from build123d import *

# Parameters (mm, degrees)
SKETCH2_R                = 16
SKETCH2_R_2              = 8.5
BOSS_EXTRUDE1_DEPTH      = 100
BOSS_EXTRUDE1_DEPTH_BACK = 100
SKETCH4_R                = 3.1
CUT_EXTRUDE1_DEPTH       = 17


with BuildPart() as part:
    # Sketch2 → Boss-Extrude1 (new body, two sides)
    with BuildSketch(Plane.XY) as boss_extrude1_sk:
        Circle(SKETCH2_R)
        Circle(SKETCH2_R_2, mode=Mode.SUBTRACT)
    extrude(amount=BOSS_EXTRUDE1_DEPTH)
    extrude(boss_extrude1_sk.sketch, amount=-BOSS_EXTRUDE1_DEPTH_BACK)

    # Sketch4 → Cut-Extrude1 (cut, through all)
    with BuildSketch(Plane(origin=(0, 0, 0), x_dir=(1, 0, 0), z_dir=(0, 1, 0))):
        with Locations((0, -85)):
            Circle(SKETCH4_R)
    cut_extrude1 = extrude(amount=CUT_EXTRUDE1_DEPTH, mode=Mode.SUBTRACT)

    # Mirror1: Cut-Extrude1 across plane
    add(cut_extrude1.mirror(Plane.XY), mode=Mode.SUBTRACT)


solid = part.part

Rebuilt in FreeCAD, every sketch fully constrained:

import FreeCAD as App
import Part
import Sketcher
from FreeCAD import Vector
Q = App.Units.Quantity

doc = App.newDocument("Part")
body = doc.addObject("PartDesign::Body", "Body")

# Sketch on XY plane
sketch1 = body.newObject("Sketcher::SketchObject", "Sketch")
sketch1.AttachmentSupport = (doc.getObject("XY_Plane"), [""])
sketch1.MapMode = "FlatFace"
sketch1.addGeometry([
    Part.Circle(Vector(0, 0, 0), Vector(0, 0, 1), 16),
    Part.Circle(Vector(0, 0, 0), Vector(0, 0, 1), 8),
], False)
sketch1.addConstraint([
    Sketcher.Constraint("Coincident", 0, 3, -1, 1),
    Sketcher.Constraint("Coincident", 1, 3, -1, 1),
    Sketcher.Constraint("Diameter", 0, Q("32 mm")),
    Sketcher.Constraint("Diameter", 1, Q("17 mm")),
])
pad1 = body.newObject("PartDesign::Pad", "Pad")
pad1.Profile = sketch1
pad1.Type = "TwoLengths"
pad1.Length = 100
pad1.Length2 = 100

# Sketch on XZ plane
sketch2 = body.newObject("Sketcher::SketchObject", "Sketch001")
sketch2.AttachmentSupport = (doc.getObject("XZ_Plane"), [""])
sketch2.MapMode = "FlatFace"
sketch2.addGeometry(Part.Circle(Vector(0, 85, 0), Vector(0, 0, 1), 3.1), False)
sketch2.addConstraint([
    Sketcher.Constraint("PointOnObject", 0, 3, -2),
    Sketcher.Constraint("Diameter", 0, Q("6.2 mm")),
    Sketcher.Constraint("DistanceY", -1, 1, 0, 3, Q("85 mm")),
])
pocket1 = body.newObject("PartDesign::Pocket", "Pocket")
pocket1.Profile = sketch2
pocket1.Type = "ThroughAll"
doc.recompute()

mirrored = body.newObject("PartDesign::Mirrored", "Mirrored")
mirrored.Originals = [pocket1]
mirrored.MirrorPlane = (doc.getObject("XY_Plane"), [""])
body.Tip = mirrored

doc.recompute()
